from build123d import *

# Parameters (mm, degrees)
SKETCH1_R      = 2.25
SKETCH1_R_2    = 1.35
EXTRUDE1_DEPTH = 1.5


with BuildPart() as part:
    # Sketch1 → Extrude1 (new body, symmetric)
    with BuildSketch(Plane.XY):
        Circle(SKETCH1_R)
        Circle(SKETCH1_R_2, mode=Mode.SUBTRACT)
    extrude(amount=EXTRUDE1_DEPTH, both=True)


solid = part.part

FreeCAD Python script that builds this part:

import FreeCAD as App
import Part
import Sketcher

V = App.Vector
Q = App.Units.Quantity

doc = App.newDocument("Part")
body = doc.addObject("PartDesign::Body", "Body")

# Sketch on XY plane
sketch1 = body.newObject("Sketcher::SketchObject", "Sketch")
sketch1.AttachmentSupport = (doc.getObject("XY_Plane"), [""])
sketch1.MapMode = "FlatFace"
sketch1.addGeometry(Part.Circle(V(0, 0, 0), V(0, 0, 1), 2.2), False)
sketch1.addGeometry(Part.Circle(V(0, 0, 0), V(0, 0, 1), 1.4), False)
sketch1.addConstraint(Sketcher.Constraint("Coincident", 0, 3, -1, 1))
sketch1.addConstraint(Sketcher.Constraint("Coincident", 1, 3, -1, 1))
sketch1.addConstraint(Sketcher.Constraint("Diameter", 0, Q("4.5 mm")))
sketch1.addConstraint(Sketcher.Constraint("Diameter", 1, Q("2.7 mm")))
pad1 = body.newObject("PartDesign::Pad", "Pad")
pad1.Profile = sketch1
pad1.Length = 3
pad1.Midplane = True

doc.recompute()
